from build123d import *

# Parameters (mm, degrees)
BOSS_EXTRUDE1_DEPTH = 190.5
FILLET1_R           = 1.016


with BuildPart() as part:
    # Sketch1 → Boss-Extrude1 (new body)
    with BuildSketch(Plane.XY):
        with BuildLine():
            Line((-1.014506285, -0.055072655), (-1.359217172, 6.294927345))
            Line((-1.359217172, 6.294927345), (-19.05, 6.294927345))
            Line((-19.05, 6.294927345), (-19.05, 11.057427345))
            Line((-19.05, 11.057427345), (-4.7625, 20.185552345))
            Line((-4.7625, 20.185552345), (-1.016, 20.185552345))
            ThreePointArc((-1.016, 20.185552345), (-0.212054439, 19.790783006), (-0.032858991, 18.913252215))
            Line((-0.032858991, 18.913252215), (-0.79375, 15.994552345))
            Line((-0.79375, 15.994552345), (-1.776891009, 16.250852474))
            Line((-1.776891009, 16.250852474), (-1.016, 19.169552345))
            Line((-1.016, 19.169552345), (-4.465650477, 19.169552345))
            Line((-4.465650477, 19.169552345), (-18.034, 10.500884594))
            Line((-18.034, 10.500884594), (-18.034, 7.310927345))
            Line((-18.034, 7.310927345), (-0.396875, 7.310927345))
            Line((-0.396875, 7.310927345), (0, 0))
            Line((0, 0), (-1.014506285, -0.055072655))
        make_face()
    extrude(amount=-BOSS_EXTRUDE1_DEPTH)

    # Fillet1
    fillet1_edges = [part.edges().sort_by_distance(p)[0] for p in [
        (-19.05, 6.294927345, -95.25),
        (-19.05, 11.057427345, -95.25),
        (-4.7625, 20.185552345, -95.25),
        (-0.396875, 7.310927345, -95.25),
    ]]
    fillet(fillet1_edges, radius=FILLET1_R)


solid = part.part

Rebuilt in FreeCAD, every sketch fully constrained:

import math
import FreeCAD as App
import Part
import Sketcher
from FreeCAD import Vector
Q = App.Units.Quantity


def edges_at(feature, points):
    """Names of the edges that pass closest to the given points."""
    edges = feature.Shape.Edges
    near = lambda p: min(range(len(edges)), key=lambda i: edges[i].distToShape(Part.Vertex(*p))[0])
    return sorted({f"Edge{near(p) + 1}" for p in points})

doc = App.newDocument("Part")
body = doc.addObject("PartDesign::Body", "Body")

sketch1 = body.newObject("Sketcher::SketchObject", "Sketch")
sketch1.AttachmentSupport = (doc.getObject("XY_Plane"), [""])
sketch1.MapMode = "FlatFace"
sketch1.addGeometry([
    Part.LineSegment(Vector(-1.4, 6.3, 0), Vector(-1, -0.1, 0)),
    Part.LineSegment(Vector(-1, -0.1, 0), Vector(0, 0, 0)),
    Part.LineSegment(Vector(0, 0, 0), Vector(-0.4, 7.3, 0)),
    Part.LineSegment(Vector(-0.4, 7.3, 0), Vector(-18, 7.3, 0)),
    Part.LineSegment(Vector(-18, 7.3, 0), Vector(-18, 10.5, 0)),
    Part.LineSegment(Vector(-18, 10.5, 0), Vector(-4.5, 19.2, 0)),
    Part.LineSegment(Vector(-4.5, 19.2, 0), Vector(-1, 19.2, 0)),
    Part.LineSegment(Vector(-1, 19.2, 0), Vector(-1.8, 16.3, 0)),
    Part.LineSegment(Vector(-1.8, 16.3, 0), Vector(-0.8, 16, 0)),
    Part.LineSegment(Vector(-0.8, 16, 0), Vector(0, 18.9, 0)),
    Part.ArcOfCircle(Part.Circle(Vector(-1, 19.2, 0), Vector(0, 0, 1), 1), math.radians(-15), math.radians(90)),
    Part.LineSegment(Vector(-1, 20.2, 0), Vector(-4.8, 20.2, 0)),
    Part.LineSegment(Vector(-4.8, 20.2, 0), Vector(-19.1, 11.1, 0)),
    Part.LineSegment(Vector(-19.1, 11.1, 0), Vector(-19.1, 6.3, 0)),
    Part.LineSegment(Vector(-19.1, 6.3, 0), Vector(-1.4, 6.3, 0)),
], False)
sketch1.addConstraint([
    Sketcher.Constraint("Coincident", 0, 2, 1, 1),
    Sketcher.Constraint("Coincident", 1, 2, 2, 1),
    Sketcher.Constraint("Coincident", 2, 2, 3, 1),
    Sketcher.Constraint("Coincident", 3, 2, 4, 1),
    Sketcher.Constraint("Coincident", 4, 2, 5, 1),
    Sketcher.Constraint("Coincident", 5, 2, 6, 1),
    Sketcher.Constraint("Coincident", 6, 2, 7, 1),
    Sketcher.Constraint("Coincident", 7, 2, 8, 1),
    Sketcher.Constraint("Coincident", 8, 2, 9, 1),
    Sketcher.Constraint("Tangent", 9, 2, 10, 1),
    Sketcher.Constraint("Tangent", 10, 2, 11, 1),
    Sketcher.Constraint("Coincident", 11, 2, 12, 1),
    Sketcher.Constraint("Coincident", 12, 2, 13, 1),
    Sketcher.Constraint("Coincident", 13, 2, 14, 1),
    Sketcher.Constraint("Coincident", 14, 2, 0, 1),
    Sketcher.Constraint("Horizontal", 3),
    Sketcher.Constraint("Vertical", 4),
    Sketcher.Constraint("Horizontal", 6),
    Sketcher.Constraint("Horizontal", 11),
    Sketcher.Constraint("Vertical", 13),
    Sketcher.Constraint("Horizontal", 14),
    Sketcher.Constraint("Coincident", 1, 2, -1, 1),
    Sketcher.Constraint("Coincident", 6, 2, 10, 3),
    Sketcher.Constraint("Perpendicular", 0, 1),
    Sketcher.Constraint("Perpendicular", 1, 2),
    Sketcher.Constraint("Perpendicular", 7, 8),
    Sketcher.Constraint("Perpendicular", 8, 9),
    Sketcher.Constraint("Parallel", 5, 12),
    Sketcher.Constraint("Equal", 1, 8),
    Sketcher.Constraint("Radius", 10, Q("0.04 in")),
    Sketcher.Constraint("DistanceY", 13, 2, 13, 1, Q("0.1875 in")),
    Sketcher.Constraint("DistanceX", 10, 3, -1, 1, Q("0.04 in")),
    Sketcher.Constraint("DistanceX", 3, 2, -1, 1, Q("0.71 in")),
    Sketcher.Constraint("DistanceX", 12, 2, -1, 1, Q("0.75 in")),
    Sketcher.Constraint("DistanceY", 0, 2, 2, 2, Q("0.29 in")),
    Sketcher.Constraint("DistanceY", 13, 2, 3, 2, Q("0.04 in")),
    Sketcher.Constraint("DistanceX", 11, 2, 11, 1, Q("0.1475 in")),
    Sketcher.Constraint("DistanceX", 2, 2, -1, 1, Q("0.015625 in")),
    Sketcher.Constraint("DistanceX", 8, 2, -1, 1, Q("0.03125 in")),
    Sketcher.Constraint("DistanceY", 8, 2, 10, 3, Q("0.125 in")),
    Sketcher.Constraint("DistanceY", 12, 2, 11, 2, Q("0.359375 in")),
    Sketcher.Constraint("DistanceX", 6, 1, 6, 2, 3.44965),
])
pad1 = body.newObject("PartDesign::Pad", "Pad")
pad1.Profile = sketch1
pad1.Length = Q("7.5 in")
pad1.Reversed = True
doc.recompute()

fillet = body.newObject("PartDesign::Fillet", "Fillet")
fillet.Base = (pad1, edges_at(pad1, [
    (-19.05, 6.295, -95.25),
    (-19.05, 11.057, -95.25),
    (-4.763, 20.186, -95.25),
    (-0.397, 7.311, -95.25),
]))
fillet.Radius = Q("0.04 in")

doc.recompute()
